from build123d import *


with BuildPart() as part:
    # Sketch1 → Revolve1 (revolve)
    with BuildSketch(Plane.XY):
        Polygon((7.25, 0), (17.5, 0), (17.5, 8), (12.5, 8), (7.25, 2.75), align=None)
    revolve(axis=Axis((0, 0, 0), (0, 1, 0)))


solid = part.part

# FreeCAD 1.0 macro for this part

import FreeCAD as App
import Part
import Sketcher
Q = App.Units.Quantity


def add_polygon(sketch, points):
    """Adds a closed chain of lines whose ends are joined by coincident constraints."""
    first, n = sketch.GeometryCount, len(points)
    for a, b in zip(points, points[1:] + points[:1]):
        sketch.addGeometry(Part.LineSegment(App.Vector(*a, 0), App.Vector(*b, 0)), False)
    for i in range(n):
        sketch.addConstraint(Sketcher.Constraint("Coincident", first + i, 2, first + (i + 1) % n, 1))

doc = App.newDocument("Part")
body = doc.addObject("PartDesign::Body", "Body")

sketch1 = body.newObject("Sketcher::SketchObject", "Sketch")
sketch1.AttachmentSupport = (doc.getObject("XY_Plane"), [""])
sketch1.MapMode = "FlatFace"
add_polygon(sketch1, [(7.2, 0), (17.5, 0), (17.5, 8), (12.5, 8), (7.2, 2.8)])
sketch1.addConstraint([
    Sketcher.Constraint("Horizontal", 0),
    Sketcher.Constraint("Vertical", 1),
    Sketcher.Constraint("Horizontal", 2),
    Sketcher.Constraint("Vertical", 4),
    Sketcher.Constraint("PointOnObject", 0, 2, -1),
    Sketcher.Constraint("DistanceX", 2, 2, 2, 1, Q("5 mm")),
    Sketcher.Constraint("DistanceY", 1, 1, 1, 2, Q("8 mm")),
    Sketcher.Constraint("Angle", 3, Q("-135 deg")),
    Sketcher.Constraint("DistanceX", 0, 1, 0, 2, Q("10.25 mm")),
    Sketcher.Constraint("DistanceX", -1, 1, 0, 2, Q("17.5 mm")),
])
revolution = body.newObject("PartDesign::Revolution", "Revolution")
revolution.Profile = sketch1
revolution.ReferenceAxis = (sketch1, ["V_Axis"])
revolution.Angle = 360

doc.recompute()
